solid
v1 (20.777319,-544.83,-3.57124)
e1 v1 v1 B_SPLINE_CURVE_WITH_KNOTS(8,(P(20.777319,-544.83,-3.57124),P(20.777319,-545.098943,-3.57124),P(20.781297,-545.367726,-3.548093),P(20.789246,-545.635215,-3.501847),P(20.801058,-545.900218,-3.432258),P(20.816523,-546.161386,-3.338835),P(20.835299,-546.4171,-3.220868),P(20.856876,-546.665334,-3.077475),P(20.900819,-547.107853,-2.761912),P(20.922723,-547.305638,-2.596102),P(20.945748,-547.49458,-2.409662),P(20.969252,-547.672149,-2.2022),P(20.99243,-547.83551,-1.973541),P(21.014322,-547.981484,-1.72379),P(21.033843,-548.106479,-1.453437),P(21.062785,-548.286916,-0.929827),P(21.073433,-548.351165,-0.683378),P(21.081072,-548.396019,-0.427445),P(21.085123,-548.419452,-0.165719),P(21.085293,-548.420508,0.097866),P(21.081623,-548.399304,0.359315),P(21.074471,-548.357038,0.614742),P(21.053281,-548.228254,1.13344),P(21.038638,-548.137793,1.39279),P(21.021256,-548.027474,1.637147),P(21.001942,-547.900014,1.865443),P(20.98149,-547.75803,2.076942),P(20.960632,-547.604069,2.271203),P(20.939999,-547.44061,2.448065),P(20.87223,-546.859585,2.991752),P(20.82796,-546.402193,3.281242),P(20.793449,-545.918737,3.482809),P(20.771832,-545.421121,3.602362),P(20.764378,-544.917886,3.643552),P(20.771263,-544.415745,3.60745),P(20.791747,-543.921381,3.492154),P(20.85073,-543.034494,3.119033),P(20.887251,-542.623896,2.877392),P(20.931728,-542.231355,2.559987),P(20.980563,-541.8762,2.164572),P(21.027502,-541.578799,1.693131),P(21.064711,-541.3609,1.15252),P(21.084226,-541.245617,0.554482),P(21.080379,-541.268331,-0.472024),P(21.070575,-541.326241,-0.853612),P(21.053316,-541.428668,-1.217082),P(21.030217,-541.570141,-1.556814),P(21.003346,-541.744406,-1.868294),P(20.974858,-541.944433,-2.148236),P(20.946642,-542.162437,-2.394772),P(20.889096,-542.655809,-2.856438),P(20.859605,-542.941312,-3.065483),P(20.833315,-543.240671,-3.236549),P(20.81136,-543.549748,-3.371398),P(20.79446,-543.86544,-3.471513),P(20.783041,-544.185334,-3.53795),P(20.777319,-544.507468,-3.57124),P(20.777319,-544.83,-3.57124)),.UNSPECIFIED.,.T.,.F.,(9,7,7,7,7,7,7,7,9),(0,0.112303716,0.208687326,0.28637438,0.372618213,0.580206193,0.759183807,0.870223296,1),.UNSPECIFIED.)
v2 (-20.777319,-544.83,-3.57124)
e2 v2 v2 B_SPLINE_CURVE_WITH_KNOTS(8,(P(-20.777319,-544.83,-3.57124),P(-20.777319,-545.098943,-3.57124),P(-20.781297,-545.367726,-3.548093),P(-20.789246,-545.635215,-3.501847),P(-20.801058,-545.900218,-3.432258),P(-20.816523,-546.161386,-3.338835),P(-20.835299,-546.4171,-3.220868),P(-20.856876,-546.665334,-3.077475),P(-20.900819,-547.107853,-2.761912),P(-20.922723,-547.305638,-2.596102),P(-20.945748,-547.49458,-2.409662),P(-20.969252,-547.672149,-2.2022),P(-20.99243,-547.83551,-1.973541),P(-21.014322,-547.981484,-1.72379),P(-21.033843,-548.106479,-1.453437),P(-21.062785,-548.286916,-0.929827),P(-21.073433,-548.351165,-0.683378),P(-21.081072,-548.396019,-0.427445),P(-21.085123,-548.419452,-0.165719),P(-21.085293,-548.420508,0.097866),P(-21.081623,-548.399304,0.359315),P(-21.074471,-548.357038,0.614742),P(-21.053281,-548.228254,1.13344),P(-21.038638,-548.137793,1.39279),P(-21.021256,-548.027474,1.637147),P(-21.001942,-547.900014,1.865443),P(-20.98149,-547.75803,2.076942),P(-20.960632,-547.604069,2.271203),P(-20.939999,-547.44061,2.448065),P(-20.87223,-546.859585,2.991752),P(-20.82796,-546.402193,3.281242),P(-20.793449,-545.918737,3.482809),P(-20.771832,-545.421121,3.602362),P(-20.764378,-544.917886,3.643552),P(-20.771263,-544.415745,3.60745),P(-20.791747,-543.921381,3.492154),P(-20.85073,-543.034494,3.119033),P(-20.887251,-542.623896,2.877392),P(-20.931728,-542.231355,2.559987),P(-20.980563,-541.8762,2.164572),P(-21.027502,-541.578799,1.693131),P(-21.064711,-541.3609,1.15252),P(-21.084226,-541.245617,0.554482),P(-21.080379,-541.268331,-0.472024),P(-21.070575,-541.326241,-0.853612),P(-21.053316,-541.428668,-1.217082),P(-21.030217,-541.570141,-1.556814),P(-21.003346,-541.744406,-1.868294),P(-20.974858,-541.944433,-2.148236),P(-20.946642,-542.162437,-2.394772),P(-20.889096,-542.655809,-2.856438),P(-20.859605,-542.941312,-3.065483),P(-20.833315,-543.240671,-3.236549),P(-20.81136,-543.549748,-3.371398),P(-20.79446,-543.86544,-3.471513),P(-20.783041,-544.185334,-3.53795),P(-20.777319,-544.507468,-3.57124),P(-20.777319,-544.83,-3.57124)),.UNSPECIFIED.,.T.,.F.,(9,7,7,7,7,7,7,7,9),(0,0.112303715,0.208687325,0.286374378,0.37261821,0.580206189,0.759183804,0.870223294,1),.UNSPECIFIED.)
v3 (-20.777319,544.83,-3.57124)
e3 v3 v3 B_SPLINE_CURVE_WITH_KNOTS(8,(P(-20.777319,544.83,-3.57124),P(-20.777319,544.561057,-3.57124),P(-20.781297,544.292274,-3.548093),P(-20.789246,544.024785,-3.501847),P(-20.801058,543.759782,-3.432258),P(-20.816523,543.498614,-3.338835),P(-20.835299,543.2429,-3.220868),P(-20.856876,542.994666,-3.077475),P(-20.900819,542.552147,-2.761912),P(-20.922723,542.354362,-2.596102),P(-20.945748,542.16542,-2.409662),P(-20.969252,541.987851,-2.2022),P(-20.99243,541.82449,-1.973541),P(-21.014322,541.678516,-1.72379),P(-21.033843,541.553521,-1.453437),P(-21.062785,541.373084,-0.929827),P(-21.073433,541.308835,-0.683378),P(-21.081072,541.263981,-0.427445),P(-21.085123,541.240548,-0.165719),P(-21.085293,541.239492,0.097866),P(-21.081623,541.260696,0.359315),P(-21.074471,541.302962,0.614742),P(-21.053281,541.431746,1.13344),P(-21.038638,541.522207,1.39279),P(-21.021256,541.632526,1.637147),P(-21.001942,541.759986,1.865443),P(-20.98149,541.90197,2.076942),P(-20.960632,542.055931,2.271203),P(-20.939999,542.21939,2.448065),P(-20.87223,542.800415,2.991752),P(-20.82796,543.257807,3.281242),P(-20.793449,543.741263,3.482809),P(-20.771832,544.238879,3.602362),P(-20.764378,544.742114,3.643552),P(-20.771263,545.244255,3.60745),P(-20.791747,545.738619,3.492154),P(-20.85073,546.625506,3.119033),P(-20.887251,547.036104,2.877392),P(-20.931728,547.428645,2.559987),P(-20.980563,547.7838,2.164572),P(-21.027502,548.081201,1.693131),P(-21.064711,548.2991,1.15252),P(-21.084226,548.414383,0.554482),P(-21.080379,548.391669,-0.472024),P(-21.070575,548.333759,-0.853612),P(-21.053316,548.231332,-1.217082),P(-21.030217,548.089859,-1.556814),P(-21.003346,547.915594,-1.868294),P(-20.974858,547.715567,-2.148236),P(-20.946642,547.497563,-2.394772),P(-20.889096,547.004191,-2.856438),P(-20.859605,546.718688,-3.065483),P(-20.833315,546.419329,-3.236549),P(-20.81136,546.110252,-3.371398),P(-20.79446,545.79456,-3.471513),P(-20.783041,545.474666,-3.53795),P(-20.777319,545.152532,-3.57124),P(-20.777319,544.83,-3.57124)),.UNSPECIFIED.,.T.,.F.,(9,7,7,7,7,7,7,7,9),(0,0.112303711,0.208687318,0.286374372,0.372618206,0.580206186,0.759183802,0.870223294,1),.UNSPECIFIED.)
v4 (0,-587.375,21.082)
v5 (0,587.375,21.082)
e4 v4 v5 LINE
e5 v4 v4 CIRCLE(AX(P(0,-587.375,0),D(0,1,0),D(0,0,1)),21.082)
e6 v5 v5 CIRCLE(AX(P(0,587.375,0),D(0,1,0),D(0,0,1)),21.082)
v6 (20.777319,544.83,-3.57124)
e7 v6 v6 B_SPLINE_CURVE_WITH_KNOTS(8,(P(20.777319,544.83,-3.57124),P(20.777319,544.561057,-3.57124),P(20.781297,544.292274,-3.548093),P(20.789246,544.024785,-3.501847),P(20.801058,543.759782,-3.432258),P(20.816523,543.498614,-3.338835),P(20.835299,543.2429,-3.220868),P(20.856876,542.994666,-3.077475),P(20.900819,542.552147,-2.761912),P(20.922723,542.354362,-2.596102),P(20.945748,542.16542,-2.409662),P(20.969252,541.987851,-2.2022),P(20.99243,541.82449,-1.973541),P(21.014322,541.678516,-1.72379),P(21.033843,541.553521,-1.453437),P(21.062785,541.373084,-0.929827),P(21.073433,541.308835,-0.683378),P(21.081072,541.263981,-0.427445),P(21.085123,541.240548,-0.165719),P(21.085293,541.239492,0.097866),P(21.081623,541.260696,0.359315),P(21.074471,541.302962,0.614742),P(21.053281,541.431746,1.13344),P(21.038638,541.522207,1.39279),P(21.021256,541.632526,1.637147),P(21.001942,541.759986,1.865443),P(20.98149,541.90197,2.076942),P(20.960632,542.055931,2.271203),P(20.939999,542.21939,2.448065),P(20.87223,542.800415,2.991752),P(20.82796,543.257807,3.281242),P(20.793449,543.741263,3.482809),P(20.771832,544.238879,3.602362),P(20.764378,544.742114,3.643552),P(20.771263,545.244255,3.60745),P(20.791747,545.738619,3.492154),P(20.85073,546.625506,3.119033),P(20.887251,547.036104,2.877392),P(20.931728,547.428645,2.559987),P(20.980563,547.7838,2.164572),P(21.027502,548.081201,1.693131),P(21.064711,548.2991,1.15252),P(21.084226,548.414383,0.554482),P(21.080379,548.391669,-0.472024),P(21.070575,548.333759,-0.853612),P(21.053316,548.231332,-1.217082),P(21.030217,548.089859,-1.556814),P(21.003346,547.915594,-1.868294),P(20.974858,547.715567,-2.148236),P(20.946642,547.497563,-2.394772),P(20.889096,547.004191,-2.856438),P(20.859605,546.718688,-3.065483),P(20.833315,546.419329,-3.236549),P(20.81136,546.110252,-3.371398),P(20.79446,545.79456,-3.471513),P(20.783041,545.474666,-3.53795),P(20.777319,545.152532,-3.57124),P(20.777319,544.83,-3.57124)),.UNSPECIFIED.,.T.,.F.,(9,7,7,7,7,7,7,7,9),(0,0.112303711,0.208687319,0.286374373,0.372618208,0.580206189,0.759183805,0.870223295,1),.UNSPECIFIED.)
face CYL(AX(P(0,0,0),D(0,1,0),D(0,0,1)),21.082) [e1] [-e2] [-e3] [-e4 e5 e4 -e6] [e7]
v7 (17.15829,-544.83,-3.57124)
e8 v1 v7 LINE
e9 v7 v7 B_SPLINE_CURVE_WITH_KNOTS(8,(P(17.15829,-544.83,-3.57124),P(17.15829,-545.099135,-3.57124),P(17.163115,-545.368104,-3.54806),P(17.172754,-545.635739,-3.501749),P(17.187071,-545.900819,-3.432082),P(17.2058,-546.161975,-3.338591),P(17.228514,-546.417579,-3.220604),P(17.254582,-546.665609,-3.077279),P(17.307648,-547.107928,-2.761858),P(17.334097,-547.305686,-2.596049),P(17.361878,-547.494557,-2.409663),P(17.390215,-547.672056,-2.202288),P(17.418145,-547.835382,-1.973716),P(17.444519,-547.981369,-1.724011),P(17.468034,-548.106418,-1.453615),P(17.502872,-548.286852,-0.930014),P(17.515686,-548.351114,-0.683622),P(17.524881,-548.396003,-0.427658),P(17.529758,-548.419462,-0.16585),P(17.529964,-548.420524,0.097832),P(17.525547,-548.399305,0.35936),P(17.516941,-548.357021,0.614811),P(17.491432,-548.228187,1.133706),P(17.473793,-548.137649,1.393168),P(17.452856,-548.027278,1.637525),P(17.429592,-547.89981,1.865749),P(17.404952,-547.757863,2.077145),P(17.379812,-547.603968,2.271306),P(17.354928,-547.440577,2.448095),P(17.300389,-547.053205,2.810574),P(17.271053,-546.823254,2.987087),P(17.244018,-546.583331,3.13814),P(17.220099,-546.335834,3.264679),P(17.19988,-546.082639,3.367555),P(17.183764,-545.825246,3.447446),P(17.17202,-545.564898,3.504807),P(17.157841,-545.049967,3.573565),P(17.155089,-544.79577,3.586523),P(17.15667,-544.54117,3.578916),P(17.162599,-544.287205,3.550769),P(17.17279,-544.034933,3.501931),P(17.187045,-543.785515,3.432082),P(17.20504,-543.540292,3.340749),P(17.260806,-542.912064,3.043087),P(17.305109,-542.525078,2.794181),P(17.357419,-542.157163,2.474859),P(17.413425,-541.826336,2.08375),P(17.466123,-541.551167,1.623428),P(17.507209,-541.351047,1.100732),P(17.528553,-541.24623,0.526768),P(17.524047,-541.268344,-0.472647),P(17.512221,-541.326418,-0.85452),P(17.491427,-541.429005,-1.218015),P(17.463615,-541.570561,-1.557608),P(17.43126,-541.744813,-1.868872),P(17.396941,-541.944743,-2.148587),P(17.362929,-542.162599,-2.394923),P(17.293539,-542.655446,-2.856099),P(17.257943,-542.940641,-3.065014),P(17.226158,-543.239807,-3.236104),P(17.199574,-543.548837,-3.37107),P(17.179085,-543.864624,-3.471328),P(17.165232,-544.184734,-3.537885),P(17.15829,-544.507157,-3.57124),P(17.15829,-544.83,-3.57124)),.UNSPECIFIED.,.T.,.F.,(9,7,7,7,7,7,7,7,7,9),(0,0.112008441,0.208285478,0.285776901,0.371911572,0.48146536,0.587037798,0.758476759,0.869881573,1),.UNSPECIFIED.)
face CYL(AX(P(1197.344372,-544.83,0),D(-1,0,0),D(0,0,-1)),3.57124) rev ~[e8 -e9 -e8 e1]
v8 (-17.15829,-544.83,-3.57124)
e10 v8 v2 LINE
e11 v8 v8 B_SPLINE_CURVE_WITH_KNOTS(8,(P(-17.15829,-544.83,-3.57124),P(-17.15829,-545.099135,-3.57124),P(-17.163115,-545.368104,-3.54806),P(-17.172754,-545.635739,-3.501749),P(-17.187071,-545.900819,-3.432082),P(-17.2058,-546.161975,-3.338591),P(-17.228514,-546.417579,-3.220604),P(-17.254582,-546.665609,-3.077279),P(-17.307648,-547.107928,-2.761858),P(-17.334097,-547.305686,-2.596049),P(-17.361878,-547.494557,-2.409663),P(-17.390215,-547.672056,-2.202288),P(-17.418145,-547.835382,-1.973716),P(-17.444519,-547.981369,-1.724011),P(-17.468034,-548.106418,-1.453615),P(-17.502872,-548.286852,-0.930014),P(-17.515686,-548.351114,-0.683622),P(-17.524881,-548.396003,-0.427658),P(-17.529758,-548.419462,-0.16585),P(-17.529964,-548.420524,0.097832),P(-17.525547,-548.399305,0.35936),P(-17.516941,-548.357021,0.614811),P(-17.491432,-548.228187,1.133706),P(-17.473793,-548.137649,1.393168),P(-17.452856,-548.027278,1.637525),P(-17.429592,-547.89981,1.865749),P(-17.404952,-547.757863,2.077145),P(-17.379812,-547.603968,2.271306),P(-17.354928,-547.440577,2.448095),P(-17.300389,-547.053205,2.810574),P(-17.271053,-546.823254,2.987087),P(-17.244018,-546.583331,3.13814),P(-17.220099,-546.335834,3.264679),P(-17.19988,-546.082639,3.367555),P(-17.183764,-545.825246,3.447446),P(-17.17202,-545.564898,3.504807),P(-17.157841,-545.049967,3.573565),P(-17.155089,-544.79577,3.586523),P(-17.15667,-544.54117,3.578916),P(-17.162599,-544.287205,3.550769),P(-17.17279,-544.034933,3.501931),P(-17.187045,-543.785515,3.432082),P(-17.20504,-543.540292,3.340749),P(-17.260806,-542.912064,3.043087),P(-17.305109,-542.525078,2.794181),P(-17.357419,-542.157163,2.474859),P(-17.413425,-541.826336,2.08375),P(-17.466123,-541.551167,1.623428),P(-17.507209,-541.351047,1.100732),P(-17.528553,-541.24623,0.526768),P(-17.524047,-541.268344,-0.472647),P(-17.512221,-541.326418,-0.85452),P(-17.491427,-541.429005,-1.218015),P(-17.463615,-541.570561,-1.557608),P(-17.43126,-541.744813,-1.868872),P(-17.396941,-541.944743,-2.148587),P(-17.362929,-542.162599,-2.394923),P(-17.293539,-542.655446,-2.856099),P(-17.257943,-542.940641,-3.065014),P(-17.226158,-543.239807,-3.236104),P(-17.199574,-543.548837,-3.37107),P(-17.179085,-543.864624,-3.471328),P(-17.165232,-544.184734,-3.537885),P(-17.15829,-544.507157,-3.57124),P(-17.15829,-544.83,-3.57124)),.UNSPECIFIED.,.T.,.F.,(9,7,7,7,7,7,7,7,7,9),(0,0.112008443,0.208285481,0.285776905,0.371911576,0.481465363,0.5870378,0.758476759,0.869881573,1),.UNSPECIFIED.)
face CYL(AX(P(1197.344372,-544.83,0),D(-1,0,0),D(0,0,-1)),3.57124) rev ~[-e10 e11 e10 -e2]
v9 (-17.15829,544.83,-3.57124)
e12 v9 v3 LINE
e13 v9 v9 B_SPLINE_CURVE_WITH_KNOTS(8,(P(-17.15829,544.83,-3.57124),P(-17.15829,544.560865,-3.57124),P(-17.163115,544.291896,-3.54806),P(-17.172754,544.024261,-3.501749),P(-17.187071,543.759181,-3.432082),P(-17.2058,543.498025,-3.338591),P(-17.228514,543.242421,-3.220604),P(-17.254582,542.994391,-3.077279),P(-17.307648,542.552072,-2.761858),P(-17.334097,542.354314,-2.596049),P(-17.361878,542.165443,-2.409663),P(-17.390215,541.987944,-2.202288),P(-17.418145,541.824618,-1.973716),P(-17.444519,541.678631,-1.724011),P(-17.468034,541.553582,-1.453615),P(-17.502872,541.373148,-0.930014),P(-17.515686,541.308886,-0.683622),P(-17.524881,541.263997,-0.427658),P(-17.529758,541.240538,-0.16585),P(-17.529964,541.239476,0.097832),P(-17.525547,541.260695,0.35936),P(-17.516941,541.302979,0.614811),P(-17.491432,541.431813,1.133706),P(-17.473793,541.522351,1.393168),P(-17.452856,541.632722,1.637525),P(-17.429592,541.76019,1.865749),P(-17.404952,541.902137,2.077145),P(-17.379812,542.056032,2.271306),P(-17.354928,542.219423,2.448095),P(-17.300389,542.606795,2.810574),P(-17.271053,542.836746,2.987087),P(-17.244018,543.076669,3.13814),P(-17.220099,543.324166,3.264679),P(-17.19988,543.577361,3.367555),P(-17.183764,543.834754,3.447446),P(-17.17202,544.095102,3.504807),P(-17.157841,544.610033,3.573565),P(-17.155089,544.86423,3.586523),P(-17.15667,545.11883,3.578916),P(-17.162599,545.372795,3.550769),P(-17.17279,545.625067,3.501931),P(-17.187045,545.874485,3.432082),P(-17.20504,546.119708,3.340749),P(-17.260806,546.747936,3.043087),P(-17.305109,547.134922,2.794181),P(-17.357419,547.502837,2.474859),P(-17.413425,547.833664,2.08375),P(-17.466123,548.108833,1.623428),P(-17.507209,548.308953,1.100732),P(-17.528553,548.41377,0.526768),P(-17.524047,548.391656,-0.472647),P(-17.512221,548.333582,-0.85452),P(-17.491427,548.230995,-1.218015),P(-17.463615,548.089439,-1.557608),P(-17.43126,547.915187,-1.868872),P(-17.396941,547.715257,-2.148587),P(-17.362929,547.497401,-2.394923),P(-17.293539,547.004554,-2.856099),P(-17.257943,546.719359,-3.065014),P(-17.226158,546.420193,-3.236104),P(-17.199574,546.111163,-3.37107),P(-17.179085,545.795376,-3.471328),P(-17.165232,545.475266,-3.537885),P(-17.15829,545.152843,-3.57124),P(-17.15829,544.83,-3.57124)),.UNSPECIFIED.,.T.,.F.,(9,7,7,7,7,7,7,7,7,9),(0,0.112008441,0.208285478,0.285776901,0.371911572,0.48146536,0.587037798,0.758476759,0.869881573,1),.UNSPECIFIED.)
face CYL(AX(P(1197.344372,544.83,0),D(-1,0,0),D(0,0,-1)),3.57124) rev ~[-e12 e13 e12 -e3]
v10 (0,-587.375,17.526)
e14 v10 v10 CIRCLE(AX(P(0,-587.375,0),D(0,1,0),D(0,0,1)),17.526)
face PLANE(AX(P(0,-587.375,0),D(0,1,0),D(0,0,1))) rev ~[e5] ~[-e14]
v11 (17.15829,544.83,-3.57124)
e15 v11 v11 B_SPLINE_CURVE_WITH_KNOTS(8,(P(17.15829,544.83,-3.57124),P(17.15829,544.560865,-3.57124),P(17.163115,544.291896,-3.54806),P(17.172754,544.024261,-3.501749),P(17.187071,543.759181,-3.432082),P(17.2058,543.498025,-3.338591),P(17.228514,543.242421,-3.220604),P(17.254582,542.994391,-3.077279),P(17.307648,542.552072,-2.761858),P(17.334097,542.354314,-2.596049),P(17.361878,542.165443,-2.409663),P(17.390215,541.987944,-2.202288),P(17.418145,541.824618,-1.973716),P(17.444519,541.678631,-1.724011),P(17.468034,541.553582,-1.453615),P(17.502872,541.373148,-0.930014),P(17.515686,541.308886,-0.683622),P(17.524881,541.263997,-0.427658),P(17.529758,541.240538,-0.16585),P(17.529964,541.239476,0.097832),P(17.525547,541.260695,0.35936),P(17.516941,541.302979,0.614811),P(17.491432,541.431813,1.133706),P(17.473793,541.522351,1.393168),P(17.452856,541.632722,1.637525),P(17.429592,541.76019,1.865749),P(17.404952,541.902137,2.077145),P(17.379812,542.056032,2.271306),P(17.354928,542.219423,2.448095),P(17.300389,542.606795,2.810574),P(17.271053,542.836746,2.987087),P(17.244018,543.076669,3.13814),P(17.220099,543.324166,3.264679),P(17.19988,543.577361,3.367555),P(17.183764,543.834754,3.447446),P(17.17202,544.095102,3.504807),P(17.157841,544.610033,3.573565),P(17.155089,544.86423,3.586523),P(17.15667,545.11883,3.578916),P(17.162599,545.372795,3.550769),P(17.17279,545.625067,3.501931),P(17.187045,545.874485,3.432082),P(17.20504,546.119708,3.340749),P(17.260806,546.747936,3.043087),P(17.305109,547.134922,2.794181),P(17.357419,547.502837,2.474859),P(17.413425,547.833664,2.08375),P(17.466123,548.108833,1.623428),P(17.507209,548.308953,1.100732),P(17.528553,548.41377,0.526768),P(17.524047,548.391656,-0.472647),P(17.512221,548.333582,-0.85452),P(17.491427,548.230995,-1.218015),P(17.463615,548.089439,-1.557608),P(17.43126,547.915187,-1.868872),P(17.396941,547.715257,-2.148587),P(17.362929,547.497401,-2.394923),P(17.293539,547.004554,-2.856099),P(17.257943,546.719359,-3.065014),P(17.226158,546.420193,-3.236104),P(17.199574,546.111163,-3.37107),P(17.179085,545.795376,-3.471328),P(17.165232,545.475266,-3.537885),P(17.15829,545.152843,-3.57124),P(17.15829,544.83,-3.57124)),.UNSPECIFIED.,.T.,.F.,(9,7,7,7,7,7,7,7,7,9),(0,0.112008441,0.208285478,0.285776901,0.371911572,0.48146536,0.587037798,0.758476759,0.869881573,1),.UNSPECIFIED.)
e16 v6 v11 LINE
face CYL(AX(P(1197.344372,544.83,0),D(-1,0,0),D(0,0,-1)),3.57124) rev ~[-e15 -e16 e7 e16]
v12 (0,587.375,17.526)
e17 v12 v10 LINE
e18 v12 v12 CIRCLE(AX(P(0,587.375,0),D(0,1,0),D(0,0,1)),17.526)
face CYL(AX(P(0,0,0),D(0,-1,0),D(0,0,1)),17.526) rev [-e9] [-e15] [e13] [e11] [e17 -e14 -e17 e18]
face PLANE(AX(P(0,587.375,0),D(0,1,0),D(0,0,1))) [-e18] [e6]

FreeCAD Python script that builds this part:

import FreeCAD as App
import Part
import Sketcher
Q = App.Units.Quantity

doc = App.newDocument("Part")
body = doc.addObject("PartDesign::Body", "Body")

sketch1 = body.newObject("Sketcher::SketchObject", "Sketch")
sketch1.AttachmentSupport = (doc.getObject("XZ_Plane"), [""])
sketch1.MapMode = "FlatFace"
sketch1.addGeometry([
    Part.Circle(App.Vector(0, 0, 0), App.Vector(0, 0, 1), 21.082),
    Part.Circle(App.Vector(0, 0, 0), App.Vector(0, 0, 1), 17.526),
], False)
sketch1.addConstraint([
    Sketcher.Constraint("Coincident", 0, 3, -1, 1),
    Sketcher.Constraint("Coincident", 1, 3, -1, 1),
    Sketcher.Constraint("Diameter", 0, Q("1.66 in")),
    Sketcher.Constraint("Diameter", 1, Q("1.38 in")),
])
pad1 = body.newObject("PartDesign::Pad", "Pad")
pad1.Profile = sketch1
pad1.Length = Q("46.25 in")
pad1.Midplane = True

sketch2 = body.newObject("Sketcher::SketchObject", "Sketch001")
sketch2.AttachmentSupport = (doc.getObject("YZ_Plane"), [""])
sketch2.MapMode = "FlatFace"
sketch2.AttachmentOffset = App.Placement(App.Vector(0, 0, 0.83 * 25.4), App.Rotation())
sketch2.addGeometry([
    Part.Circle(App.Vector(544.83, 0, 0), App.Vector(0, 0, 1), 3.57124),
    Part.Circle(App.Vector(-544.83, 0, 0), App.Vector(0, 0, 1), 3.57124),
], False)
sketch2.addConstraint([
    Sketcher.Constraint("Equal", 0, 1),
    Sketcher.Constraint("Symmetric", 0, 3, 1, 3, -1, 1),
    Sketcher.Constraint("PointOnObject", 0, 3, -1),
    Sketcher.Constraint("Diameter", 0, Q("0.2812 in")),
    Sketcher.Constraint("DistanceX", 1, 3, 0, 3, Q("42.9 in")),
])
doc.recompute()
hole = body.newObject("PartDesign::Hole", "Hole")
hole.Profile = sketch2
hole.ThreadType = "None"
hole.Diameter = Q("0.2812 in")
hole.DepthType = "ThroughAll"

doc.recompute()
